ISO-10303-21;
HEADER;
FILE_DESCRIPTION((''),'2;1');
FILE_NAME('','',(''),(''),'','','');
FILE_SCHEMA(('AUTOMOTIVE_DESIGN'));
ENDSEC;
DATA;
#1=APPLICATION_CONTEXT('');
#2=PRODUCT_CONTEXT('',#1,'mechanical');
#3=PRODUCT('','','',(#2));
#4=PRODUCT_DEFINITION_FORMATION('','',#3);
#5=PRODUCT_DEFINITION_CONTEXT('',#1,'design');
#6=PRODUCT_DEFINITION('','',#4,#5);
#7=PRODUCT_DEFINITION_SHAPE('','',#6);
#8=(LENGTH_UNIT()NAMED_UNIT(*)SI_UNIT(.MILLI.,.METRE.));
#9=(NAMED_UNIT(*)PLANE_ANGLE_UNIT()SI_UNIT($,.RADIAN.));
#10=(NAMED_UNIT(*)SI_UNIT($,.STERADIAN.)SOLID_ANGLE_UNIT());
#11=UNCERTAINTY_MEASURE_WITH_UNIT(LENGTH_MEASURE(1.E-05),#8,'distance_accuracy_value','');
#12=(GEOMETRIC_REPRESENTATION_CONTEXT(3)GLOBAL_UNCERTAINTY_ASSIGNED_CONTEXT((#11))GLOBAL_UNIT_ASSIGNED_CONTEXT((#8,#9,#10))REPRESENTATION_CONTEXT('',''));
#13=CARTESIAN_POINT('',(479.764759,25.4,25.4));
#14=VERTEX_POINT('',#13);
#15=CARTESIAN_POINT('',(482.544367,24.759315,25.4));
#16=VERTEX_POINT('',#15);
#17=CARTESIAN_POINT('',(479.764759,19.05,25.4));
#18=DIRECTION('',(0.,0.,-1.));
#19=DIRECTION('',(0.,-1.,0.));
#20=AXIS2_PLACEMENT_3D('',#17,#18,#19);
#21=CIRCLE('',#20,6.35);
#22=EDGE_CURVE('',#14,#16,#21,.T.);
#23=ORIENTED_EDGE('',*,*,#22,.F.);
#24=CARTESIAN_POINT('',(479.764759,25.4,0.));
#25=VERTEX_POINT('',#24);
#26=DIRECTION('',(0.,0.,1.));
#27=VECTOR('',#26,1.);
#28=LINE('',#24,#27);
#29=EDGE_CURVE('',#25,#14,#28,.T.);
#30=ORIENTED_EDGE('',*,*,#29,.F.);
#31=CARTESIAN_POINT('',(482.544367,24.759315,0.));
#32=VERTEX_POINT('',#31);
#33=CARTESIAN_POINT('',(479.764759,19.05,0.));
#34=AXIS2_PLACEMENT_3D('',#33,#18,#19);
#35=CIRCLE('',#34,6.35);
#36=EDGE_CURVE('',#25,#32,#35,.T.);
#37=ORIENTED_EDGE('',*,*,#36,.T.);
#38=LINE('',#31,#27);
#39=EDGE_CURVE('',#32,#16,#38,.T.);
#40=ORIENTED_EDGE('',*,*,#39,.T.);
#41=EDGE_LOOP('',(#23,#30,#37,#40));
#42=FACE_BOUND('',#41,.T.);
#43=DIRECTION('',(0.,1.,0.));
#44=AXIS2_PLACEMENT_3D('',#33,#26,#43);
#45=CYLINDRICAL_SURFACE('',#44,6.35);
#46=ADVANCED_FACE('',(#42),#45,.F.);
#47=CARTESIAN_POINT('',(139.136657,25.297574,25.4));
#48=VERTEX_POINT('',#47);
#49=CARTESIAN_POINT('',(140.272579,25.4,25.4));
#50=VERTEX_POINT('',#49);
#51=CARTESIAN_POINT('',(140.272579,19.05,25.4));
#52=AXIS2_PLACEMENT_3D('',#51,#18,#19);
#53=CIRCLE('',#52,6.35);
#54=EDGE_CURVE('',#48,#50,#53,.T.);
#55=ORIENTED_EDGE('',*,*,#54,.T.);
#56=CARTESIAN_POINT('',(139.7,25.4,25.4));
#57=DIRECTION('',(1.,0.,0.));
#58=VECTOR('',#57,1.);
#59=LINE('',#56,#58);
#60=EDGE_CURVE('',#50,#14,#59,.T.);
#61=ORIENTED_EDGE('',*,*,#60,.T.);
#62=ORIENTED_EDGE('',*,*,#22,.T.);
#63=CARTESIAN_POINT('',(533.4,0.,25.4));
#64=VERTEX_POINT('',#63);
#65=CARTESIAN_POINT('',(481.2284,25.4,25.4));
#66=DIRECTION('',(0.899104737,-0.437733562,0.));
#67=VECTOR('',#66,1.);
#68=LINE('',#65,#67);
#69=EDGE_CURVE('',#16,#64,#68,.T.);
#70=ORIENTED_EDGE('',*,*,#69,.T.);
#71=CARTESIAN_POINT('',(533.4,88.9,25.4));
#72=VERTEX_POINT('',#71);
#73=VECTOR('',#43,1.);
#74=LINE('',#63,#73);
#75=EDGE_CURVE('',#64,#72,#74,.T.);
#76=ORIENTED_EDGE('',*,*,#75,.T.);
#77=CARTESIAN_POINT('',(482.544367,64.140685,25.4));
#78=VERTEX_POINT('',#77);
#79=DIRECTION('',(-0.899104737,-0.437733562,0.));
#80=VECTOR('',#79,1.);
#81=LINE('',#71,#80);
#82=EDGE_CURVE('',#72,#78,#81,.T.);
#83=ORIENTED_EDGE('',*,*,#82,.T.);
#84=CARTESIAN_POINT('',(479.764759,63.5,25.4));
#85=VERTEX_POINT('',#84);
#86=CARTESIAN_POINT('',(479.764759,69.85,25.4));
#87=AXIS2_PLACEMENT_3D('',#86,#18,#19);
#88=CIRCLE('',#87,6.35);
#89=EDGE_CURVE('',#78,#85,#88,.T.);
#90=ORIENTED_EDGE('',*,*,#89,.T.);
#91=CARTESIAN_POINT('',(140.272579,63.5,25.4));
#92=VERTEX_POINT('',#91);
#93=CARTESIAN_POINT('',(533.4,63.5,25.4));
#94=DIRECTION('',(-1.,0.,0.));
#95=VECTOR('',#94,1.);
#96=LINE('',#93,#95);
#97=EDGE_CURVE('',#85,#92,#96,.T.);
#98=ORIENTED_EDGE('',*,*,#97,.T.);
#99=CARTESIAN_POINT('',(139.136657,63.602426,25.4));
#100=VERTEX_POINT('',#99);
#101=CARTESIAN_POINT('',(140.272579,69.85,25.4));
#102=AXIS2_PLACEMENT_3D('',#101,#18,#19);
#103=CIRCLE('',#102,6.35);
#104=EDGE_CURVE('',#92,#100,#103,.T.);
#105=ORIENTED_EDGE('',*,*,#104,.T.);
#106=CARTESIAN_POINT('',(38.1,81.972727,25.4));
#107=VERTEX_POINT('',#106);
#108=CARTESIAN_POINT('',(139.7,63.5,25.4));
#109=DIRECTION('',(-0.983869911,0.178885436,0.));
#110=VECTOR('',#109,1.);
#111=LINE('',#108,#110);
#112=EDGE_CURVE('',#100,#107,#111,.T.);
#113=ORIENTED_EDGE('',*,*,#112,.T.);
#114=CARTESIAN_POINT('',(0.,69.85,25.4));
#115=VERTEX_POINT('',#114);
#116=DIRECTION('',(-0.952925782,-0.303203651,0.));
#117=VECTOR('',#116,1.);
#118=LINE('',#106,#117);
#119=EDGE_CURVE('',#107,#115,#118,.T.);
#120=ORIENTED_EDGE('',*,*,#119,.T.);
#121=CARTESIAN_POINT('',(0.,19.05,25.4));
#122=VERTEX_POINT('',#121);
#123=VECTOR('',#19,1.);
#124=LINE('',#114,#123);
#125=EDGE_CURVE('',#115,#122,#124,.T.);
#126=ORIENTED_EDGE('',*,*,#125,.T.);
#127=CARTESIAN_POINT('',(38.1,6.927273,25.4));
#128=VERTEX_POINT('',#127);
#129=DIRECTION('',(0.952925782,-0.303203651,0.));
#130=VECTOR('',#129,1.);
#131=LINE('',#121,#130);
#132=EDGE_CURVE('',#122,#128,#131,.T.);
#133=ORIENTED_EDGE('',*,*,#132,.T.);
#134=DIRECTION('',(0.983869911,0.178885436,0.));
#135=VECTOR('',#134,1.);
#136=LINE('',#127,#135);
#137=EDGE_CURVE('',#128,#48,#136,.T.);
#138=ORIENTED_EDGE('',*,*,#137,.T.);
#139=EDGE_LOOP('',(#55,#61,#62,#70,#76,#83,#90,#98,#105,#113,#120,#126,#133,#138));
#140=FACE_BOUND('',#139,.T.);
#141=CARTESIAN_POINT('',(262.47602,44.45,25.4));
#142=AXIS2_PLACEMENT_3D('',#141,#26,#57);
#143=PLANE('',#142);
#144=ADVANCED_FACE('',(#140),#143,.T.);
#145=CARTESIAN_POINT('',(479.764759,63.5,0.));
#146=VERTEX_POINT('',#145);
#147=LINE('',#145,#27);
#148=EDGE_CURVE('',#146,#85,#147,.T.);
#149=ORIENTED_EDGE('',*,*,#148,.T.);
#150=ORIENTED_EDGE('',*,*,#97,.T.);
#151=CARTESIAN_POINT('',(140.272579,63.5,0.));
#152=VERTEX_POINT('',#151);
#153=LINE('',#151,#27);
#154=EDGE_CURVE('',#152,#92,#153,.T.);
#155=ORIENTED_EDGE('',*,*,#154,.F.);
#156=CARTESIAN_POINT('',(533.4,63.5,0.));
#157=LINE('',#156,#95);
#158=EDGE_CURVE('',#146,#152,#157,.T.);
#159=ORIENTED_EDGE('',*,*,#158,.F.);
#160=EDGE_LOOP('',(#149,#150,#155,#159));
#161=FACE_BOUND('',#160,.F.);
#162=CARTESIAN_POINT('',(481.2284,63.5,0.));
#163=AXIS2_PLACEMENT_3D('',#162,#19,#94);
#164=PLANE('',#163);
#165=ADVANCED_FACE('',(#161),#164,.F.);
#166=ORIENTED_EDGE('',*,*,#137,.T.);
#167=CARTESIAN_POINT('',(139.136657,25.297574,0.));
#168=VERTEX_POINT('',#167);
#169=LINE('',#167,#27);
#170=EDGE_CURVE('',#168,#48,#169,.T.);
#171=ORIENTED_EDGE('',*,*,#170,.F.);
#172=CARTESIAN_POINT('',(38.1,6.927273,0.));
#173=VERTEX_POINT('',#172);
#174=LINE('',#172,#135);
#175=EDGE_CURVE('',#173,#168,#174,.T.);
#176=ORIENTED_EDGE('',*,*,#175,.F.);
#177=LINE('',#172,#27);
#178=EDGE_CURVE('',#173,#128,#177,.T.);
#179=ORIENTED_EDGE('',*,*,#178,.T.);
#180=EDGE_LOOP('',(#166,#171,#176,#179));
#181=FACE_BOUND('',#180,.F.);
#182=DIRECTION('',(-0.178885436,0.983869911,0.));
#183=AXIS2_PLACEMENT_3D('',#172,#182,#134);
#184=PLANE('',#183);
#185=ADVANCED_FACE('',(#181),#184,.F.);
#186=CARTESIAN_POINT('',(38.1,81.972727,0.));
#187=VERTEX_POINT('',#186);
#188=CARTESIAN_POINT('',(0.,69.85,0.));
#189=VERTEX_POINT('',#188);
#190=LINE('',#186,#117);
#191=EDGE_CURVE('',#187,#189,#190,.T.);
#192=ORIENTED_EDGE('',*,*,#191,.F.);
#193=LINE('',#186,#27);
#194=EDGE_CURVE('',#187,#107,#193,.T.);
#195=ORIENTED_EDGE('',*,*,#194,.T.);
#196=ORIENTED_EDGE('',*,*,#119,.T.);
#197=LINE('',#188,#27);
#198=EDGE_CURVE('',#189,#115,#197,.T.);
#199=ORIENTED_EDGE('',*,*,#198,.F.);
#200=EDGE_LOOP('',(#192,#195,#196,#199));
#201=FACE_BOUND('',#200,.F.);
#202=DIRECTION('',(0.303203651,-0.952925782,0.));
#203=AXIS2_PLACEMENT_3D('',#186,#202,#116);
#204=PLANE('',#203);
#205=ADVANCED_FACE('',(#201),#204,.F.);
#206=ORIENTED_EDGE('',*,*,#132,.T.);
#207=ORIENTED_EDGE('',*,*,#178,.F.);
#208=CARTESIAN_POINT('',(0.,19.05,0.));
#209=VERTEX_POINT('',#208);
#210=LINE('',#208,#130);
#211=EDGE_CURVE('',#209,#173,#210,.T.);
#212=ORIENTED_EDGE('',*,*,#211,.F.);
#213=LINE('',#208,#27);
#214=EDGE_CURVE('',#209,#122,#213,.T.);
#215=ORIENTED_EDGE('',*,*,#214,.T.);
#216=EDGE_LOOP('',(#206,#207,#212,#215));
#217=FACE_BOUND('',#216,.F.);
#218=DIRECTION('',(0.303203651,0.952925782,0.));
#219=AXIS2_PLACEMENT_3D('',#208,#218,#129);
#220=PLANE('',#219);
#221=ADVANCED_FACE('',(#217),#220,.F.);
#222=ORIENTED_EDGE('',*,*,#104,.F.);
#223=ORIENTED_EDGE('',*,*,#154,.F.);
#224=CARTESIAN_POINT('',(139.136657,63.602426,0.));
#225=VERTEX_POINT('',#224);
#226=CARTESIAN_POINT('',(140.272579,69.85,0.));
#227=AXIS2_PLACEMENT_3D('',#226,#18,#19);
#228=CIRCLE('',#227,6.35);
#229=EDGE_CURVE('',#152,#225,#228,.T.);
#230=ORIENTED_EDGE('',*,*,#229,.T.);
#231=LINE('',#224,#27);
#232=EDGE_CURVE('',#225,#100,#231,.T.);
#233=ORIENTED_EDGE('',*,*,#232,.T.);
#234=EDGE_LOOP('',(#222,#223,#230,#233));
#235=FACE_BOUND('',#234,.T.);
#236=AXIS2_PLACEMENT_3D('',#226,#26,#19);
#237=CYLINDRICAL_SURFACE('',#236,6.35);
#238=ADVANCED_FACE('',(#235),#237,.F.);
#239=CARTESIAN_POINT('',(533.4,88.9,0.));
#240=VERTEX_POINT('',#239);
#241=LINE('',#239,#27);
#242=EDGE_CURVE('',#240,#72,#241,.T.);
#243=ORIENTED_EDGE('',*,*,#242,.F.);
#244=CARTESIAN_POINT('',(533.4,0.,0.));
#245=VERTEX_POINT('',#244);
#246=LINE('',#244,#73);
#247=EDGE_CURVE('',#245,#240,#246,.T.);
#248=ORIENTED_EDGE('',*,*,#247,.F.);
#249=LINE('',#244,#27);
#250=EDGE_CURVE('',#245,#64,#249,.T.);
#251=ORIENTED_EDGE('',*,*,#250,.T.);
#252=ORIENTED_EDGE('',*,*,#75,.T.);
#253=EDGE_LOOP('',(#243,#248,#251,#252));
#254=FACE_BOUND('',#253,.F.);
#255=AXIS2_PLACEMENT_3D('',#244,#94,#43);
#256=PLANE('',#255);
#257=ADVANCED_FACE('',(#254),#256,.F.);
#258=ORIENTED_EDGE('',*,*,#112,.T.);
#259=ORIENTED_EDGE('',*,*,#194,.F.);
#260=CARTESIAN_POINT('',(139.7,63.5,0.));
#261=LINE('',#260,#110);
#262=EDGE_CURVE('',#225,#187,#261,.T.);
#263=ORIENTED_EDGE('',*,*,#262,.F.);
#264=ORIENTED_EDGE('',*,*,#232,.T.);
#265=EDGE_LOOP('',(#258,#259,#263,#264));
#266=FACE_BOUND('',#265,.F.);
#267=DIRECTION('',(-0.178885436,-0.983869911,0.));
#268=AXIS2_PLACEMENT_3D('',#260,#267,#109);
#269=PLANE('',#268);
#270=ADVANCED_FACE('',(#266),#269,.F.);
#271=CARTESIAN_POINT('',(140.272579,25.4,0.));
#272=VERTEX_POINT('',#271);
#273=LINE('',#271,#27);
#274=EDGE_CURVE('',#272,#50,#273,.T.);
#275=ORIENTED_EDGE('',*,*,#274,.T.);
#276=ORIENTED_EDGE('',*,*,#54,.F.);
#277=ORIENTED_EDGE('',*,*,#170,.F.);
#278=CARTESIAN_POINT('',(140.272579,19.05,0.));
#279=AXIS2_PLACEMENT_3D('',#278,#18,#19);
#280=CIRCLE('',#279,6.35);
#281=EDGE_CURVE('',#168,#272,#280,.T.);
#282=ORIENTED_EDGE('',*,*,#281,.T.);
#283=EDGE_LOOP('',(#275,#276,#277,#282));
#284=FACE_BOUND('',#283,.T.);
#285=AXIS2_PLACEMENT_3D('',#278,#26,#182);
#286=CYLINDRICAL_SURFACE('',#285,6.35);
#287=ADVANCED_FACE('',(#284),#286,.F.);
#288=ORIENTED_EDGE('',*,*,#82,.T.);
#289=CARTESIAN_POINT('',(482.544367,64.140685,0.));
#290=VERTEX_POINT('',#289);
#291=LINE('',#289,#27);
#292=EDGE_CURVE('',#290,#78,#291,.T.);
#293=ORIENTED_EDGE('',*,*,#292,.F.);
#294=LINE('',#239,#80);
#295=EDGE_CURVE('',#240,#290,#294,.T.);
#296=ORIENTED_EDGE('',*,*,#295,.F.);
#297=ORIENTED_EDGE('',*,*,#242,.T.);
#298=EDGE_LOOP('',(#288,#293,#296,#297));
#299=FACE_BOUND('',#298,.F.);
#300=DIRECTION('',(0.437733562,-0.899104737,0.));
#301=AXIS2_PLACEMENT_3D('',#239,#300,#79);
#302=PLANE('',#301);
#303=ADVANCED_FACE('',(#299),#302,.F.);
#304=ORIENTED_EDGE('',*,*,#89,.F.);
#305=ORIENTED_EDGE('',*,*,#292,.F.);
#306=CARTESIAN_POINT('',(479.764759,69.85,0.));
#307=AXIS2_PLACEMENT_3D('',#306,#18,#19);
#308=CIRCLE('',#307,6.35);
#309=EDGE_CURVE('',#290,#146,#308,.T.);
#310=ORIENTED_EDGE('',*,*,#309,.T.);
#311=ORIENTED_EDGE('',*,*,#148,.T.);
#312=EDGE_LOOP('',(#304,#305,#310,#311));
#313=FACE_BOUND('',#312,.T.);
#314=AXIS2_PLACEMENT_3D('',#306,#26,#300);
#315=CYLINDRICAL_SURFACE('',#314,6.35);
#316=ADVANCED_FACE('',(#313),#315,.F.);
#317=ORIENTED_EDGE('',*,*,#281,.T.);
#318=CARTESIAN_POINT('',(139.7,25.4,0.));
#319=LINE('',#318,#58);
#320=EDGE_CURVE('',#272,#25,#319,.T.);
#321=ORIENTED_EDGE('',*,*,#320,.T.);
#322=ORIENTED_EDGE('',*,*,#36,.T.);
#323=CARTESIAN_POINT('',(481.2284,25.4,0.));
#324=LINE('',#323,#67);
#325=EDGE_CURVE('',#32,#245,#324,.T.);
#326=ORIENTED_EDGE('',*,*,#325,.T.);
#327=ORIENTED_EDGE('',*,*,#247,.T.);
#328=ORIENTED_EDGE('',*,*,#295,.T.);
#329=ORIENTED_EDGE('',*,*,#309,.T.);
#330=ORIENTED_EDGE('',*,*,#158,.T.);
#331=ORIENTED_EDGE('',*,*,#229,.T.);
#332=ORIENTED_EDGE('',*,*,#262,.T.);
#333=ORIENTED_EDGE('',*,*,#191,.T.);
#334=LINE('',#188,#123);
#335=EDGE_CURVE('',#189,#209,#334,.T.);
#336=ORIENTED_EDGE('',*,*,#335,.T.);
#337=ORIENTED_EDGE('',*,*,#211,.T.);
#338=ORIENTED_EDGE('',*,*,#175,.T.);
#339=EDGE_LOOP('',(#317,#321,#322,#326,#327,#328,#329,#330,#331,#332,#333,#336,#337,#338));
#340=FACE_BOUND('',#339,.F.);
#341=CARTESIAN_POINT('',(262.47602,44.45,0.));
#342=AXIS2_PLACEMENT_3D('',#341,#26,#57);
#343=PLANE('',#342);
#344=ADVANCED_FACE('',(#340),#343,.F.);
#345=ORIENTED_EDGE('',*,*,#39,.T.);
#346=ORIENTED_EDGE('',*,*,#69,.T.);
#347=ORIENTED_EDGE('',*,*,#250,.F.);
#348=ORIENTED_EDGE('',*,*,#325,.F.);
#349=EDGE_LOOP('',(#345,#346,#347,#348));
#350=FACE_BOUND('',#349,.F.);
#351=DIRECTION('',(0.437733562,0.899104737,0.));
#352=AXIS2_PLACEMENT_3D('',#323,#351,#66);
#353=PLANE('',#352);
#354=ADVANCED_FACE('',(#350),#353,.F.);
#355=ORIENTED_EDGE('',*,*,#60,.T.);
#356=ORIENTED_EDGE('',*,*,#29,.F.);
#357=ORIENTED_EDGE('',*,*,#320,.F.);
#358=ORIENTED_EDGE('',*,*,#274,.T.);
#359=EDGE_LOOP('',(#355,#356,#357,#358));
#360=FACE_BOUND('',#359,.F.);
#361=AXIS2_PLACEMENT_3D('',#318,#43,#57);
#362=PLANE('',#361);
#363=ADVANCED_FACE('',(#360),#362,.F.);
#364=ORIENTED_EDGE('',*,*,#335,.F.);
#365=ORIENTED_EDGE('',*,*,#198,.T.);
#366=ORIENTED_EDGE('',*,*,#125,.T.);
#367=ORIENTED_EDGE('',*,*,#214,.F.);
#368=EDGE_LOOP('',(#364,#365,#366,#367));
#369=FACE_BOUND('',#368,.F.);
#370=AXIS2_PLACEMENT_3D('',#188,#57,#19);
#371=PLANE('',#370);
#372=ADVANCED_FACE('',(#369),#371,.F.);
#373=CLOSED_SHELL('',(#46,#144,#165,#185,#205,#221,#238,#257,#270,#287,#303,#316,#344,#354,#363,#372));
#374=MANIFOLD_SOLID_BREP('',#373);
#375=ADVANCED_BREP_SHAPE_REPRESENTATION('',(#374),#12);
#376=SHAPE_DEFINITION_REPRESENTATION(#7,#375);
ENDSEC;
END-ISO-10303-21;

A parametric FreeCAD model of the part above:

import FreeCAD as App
import Part
import Sketcher
Q = App.Units.Quantity


def edges_at(feature, points):
    """Names of the edges that pass closest to the given points."""
    edges = feature.Shape.Edges
    near = lambda p: min(range(len(edges)), key=lambda i: edges[i].distToShape(Part.Vertex(*p))[0])
    return sorted({f"Edge{near(p) + 1}" for p in points})


def add_polygon(sketch, points):
    """Adds a closed chain of lines whose ends are joined by coincident constraints."""
    first, n = sketch.GeometryCount, len(points)
    for a, b in zip(points, points[1:] + points[:1]):
        sketch.addGeometry(Part.LineSegment(App.Vector(*a, 0), App.Vector(*b, 0)), False)
    for i in range(n):
        sketch.addConstraint(Sketcher.Constraint("Coincident", first + i, 2, first + (i + 1) % n, 1))

doc = App.newDocument("Part")
params = doc.addObject("Spreadsheet::Sheet", "Params")
for row, (alias, value) in enumerate([
    ("sketch1_height", "2 in"),
    ("sketch1_height2", "3.5 in"),
    ("sketch1_width", "13.446 in"),
    ("pad1_length", "1 in"),
    ("fillet_radius", "0.25 in"),
], start=1):
    params.set(f"A{row}", alias)
    params.set(f"B{row}", "=" + value)
    params.setAlias(f"B{row}", alias)

body = doc.addObject("PartDesign::Body", "Body")

# Sketch on XY plane
sketch1 = body.newObject("Sketcher::SketchObject", "Sketch")
sketch1.AttachmentSupport = (doc.getObject("XY_Plane"), [""])
sketch1.MapMode = "FlatFace"
add_polygon(sketch1, [(0, 70), (0, 19), (38, 7), (140, 25), (481, 25), (533, 0), (533, 89), (481, 64), (140, 64), (38, 82)])  # lines 0-9
sketch1.addConstraint(Sketcher.Constraint("Vertical", 0))
sketch1.addConstraint(Sketcher.Constraint("Horizontal", 3))
sketch1.addConstraint(Sketcher.Constraint("Vertical", 5))
sketch1.addConstraint(Sketcher.Constraint("Horizontal", 7))
sketch1.addConstraint(Sketcher.Constraint("PointOnObject", 0, 2, -2))
sketch1.addConstraint(Sketcher.Constraint("PointOnObject", 4, 2, -1))
sketch1.addConstraint(Sketcher.Constraint("Vertical", 3, 2, 6, 2))
sketch1.addConstraint(Sketcher.Constraint("Vertical", 2, 2, 7, 2))
sketch1.addConstraint(Sketcher.Constraint("Vertical", 1, 2, 8, 2))
sketch1.addConstraint(Sketcher.Constraint("Equal", 4, 6))
sketch1.addConstraint(Sketcher.Constraint("Equal", 2, 8))
sketch1.addConstraint(Sketcher.Constraint("Equal", 1, 9))
sketch1.addConstraint(Sketcher.Constraint("DistanceY", 0, 2, 0, 1, Q("2 in")))
sketch1.addConstraint(Sketcher.Constraint("DistanceY", 5, 1, 5, 2, Q("3.5 in")))
sketch1.addConstraint(Sketcher.Constraint("DistanceY", -1, 1, 2, 2, Q("1 in")))
sketch1.addConstraint(Sketcher.Constraint("DistanceX", -1, 1, 4, 2, Q("21 in")))
sketch1.addConstraint(Sketcher.Constraint("DistanceX", 1, 2, 2, 2, Q("4 in")))
sketch1.addConstraint(Sketcher.Constraint("DistanceX", -1, 1, 1, 2, Q("1.5 in")))
sketch1.addConstraint(Sketcher.Constraint("DistanceX", 3, 1, 3, 2, Q("13.446 in")))
sketch1.addConstraint(Sketcher.Constraint("Distance", 1, Q("39.982127 mm")))
sketch1.setExpression("Constraints[22]", "Params.sketch1_height")
sketch1.setExpression("Constraints[23]", "Params.sketch1_height2")
sketch1.setExpression("Constraints[28]", "Params.sketch1_width")
pad1 = body.newObject("PartDesign::Pad", "Pad")
pad1.Profile = sketch1
pad1.setExpression("Length", "Params.pad1_length")
doc.recompute()

fillet = body.newObject("PartDesign::Fillet", "Fillet")
fillet.Base = (pad1, edges_at(pad1, [
    (139.7, 63.5, 12.7),
    (481.228, 63.5, 12.7),
    (139.7, 25.4, 12.7),
    (481.228, 25.4, 12.7),
]))
fillet.setExpression("Radius", "Params.fillet_radius")

doc.recompute()
